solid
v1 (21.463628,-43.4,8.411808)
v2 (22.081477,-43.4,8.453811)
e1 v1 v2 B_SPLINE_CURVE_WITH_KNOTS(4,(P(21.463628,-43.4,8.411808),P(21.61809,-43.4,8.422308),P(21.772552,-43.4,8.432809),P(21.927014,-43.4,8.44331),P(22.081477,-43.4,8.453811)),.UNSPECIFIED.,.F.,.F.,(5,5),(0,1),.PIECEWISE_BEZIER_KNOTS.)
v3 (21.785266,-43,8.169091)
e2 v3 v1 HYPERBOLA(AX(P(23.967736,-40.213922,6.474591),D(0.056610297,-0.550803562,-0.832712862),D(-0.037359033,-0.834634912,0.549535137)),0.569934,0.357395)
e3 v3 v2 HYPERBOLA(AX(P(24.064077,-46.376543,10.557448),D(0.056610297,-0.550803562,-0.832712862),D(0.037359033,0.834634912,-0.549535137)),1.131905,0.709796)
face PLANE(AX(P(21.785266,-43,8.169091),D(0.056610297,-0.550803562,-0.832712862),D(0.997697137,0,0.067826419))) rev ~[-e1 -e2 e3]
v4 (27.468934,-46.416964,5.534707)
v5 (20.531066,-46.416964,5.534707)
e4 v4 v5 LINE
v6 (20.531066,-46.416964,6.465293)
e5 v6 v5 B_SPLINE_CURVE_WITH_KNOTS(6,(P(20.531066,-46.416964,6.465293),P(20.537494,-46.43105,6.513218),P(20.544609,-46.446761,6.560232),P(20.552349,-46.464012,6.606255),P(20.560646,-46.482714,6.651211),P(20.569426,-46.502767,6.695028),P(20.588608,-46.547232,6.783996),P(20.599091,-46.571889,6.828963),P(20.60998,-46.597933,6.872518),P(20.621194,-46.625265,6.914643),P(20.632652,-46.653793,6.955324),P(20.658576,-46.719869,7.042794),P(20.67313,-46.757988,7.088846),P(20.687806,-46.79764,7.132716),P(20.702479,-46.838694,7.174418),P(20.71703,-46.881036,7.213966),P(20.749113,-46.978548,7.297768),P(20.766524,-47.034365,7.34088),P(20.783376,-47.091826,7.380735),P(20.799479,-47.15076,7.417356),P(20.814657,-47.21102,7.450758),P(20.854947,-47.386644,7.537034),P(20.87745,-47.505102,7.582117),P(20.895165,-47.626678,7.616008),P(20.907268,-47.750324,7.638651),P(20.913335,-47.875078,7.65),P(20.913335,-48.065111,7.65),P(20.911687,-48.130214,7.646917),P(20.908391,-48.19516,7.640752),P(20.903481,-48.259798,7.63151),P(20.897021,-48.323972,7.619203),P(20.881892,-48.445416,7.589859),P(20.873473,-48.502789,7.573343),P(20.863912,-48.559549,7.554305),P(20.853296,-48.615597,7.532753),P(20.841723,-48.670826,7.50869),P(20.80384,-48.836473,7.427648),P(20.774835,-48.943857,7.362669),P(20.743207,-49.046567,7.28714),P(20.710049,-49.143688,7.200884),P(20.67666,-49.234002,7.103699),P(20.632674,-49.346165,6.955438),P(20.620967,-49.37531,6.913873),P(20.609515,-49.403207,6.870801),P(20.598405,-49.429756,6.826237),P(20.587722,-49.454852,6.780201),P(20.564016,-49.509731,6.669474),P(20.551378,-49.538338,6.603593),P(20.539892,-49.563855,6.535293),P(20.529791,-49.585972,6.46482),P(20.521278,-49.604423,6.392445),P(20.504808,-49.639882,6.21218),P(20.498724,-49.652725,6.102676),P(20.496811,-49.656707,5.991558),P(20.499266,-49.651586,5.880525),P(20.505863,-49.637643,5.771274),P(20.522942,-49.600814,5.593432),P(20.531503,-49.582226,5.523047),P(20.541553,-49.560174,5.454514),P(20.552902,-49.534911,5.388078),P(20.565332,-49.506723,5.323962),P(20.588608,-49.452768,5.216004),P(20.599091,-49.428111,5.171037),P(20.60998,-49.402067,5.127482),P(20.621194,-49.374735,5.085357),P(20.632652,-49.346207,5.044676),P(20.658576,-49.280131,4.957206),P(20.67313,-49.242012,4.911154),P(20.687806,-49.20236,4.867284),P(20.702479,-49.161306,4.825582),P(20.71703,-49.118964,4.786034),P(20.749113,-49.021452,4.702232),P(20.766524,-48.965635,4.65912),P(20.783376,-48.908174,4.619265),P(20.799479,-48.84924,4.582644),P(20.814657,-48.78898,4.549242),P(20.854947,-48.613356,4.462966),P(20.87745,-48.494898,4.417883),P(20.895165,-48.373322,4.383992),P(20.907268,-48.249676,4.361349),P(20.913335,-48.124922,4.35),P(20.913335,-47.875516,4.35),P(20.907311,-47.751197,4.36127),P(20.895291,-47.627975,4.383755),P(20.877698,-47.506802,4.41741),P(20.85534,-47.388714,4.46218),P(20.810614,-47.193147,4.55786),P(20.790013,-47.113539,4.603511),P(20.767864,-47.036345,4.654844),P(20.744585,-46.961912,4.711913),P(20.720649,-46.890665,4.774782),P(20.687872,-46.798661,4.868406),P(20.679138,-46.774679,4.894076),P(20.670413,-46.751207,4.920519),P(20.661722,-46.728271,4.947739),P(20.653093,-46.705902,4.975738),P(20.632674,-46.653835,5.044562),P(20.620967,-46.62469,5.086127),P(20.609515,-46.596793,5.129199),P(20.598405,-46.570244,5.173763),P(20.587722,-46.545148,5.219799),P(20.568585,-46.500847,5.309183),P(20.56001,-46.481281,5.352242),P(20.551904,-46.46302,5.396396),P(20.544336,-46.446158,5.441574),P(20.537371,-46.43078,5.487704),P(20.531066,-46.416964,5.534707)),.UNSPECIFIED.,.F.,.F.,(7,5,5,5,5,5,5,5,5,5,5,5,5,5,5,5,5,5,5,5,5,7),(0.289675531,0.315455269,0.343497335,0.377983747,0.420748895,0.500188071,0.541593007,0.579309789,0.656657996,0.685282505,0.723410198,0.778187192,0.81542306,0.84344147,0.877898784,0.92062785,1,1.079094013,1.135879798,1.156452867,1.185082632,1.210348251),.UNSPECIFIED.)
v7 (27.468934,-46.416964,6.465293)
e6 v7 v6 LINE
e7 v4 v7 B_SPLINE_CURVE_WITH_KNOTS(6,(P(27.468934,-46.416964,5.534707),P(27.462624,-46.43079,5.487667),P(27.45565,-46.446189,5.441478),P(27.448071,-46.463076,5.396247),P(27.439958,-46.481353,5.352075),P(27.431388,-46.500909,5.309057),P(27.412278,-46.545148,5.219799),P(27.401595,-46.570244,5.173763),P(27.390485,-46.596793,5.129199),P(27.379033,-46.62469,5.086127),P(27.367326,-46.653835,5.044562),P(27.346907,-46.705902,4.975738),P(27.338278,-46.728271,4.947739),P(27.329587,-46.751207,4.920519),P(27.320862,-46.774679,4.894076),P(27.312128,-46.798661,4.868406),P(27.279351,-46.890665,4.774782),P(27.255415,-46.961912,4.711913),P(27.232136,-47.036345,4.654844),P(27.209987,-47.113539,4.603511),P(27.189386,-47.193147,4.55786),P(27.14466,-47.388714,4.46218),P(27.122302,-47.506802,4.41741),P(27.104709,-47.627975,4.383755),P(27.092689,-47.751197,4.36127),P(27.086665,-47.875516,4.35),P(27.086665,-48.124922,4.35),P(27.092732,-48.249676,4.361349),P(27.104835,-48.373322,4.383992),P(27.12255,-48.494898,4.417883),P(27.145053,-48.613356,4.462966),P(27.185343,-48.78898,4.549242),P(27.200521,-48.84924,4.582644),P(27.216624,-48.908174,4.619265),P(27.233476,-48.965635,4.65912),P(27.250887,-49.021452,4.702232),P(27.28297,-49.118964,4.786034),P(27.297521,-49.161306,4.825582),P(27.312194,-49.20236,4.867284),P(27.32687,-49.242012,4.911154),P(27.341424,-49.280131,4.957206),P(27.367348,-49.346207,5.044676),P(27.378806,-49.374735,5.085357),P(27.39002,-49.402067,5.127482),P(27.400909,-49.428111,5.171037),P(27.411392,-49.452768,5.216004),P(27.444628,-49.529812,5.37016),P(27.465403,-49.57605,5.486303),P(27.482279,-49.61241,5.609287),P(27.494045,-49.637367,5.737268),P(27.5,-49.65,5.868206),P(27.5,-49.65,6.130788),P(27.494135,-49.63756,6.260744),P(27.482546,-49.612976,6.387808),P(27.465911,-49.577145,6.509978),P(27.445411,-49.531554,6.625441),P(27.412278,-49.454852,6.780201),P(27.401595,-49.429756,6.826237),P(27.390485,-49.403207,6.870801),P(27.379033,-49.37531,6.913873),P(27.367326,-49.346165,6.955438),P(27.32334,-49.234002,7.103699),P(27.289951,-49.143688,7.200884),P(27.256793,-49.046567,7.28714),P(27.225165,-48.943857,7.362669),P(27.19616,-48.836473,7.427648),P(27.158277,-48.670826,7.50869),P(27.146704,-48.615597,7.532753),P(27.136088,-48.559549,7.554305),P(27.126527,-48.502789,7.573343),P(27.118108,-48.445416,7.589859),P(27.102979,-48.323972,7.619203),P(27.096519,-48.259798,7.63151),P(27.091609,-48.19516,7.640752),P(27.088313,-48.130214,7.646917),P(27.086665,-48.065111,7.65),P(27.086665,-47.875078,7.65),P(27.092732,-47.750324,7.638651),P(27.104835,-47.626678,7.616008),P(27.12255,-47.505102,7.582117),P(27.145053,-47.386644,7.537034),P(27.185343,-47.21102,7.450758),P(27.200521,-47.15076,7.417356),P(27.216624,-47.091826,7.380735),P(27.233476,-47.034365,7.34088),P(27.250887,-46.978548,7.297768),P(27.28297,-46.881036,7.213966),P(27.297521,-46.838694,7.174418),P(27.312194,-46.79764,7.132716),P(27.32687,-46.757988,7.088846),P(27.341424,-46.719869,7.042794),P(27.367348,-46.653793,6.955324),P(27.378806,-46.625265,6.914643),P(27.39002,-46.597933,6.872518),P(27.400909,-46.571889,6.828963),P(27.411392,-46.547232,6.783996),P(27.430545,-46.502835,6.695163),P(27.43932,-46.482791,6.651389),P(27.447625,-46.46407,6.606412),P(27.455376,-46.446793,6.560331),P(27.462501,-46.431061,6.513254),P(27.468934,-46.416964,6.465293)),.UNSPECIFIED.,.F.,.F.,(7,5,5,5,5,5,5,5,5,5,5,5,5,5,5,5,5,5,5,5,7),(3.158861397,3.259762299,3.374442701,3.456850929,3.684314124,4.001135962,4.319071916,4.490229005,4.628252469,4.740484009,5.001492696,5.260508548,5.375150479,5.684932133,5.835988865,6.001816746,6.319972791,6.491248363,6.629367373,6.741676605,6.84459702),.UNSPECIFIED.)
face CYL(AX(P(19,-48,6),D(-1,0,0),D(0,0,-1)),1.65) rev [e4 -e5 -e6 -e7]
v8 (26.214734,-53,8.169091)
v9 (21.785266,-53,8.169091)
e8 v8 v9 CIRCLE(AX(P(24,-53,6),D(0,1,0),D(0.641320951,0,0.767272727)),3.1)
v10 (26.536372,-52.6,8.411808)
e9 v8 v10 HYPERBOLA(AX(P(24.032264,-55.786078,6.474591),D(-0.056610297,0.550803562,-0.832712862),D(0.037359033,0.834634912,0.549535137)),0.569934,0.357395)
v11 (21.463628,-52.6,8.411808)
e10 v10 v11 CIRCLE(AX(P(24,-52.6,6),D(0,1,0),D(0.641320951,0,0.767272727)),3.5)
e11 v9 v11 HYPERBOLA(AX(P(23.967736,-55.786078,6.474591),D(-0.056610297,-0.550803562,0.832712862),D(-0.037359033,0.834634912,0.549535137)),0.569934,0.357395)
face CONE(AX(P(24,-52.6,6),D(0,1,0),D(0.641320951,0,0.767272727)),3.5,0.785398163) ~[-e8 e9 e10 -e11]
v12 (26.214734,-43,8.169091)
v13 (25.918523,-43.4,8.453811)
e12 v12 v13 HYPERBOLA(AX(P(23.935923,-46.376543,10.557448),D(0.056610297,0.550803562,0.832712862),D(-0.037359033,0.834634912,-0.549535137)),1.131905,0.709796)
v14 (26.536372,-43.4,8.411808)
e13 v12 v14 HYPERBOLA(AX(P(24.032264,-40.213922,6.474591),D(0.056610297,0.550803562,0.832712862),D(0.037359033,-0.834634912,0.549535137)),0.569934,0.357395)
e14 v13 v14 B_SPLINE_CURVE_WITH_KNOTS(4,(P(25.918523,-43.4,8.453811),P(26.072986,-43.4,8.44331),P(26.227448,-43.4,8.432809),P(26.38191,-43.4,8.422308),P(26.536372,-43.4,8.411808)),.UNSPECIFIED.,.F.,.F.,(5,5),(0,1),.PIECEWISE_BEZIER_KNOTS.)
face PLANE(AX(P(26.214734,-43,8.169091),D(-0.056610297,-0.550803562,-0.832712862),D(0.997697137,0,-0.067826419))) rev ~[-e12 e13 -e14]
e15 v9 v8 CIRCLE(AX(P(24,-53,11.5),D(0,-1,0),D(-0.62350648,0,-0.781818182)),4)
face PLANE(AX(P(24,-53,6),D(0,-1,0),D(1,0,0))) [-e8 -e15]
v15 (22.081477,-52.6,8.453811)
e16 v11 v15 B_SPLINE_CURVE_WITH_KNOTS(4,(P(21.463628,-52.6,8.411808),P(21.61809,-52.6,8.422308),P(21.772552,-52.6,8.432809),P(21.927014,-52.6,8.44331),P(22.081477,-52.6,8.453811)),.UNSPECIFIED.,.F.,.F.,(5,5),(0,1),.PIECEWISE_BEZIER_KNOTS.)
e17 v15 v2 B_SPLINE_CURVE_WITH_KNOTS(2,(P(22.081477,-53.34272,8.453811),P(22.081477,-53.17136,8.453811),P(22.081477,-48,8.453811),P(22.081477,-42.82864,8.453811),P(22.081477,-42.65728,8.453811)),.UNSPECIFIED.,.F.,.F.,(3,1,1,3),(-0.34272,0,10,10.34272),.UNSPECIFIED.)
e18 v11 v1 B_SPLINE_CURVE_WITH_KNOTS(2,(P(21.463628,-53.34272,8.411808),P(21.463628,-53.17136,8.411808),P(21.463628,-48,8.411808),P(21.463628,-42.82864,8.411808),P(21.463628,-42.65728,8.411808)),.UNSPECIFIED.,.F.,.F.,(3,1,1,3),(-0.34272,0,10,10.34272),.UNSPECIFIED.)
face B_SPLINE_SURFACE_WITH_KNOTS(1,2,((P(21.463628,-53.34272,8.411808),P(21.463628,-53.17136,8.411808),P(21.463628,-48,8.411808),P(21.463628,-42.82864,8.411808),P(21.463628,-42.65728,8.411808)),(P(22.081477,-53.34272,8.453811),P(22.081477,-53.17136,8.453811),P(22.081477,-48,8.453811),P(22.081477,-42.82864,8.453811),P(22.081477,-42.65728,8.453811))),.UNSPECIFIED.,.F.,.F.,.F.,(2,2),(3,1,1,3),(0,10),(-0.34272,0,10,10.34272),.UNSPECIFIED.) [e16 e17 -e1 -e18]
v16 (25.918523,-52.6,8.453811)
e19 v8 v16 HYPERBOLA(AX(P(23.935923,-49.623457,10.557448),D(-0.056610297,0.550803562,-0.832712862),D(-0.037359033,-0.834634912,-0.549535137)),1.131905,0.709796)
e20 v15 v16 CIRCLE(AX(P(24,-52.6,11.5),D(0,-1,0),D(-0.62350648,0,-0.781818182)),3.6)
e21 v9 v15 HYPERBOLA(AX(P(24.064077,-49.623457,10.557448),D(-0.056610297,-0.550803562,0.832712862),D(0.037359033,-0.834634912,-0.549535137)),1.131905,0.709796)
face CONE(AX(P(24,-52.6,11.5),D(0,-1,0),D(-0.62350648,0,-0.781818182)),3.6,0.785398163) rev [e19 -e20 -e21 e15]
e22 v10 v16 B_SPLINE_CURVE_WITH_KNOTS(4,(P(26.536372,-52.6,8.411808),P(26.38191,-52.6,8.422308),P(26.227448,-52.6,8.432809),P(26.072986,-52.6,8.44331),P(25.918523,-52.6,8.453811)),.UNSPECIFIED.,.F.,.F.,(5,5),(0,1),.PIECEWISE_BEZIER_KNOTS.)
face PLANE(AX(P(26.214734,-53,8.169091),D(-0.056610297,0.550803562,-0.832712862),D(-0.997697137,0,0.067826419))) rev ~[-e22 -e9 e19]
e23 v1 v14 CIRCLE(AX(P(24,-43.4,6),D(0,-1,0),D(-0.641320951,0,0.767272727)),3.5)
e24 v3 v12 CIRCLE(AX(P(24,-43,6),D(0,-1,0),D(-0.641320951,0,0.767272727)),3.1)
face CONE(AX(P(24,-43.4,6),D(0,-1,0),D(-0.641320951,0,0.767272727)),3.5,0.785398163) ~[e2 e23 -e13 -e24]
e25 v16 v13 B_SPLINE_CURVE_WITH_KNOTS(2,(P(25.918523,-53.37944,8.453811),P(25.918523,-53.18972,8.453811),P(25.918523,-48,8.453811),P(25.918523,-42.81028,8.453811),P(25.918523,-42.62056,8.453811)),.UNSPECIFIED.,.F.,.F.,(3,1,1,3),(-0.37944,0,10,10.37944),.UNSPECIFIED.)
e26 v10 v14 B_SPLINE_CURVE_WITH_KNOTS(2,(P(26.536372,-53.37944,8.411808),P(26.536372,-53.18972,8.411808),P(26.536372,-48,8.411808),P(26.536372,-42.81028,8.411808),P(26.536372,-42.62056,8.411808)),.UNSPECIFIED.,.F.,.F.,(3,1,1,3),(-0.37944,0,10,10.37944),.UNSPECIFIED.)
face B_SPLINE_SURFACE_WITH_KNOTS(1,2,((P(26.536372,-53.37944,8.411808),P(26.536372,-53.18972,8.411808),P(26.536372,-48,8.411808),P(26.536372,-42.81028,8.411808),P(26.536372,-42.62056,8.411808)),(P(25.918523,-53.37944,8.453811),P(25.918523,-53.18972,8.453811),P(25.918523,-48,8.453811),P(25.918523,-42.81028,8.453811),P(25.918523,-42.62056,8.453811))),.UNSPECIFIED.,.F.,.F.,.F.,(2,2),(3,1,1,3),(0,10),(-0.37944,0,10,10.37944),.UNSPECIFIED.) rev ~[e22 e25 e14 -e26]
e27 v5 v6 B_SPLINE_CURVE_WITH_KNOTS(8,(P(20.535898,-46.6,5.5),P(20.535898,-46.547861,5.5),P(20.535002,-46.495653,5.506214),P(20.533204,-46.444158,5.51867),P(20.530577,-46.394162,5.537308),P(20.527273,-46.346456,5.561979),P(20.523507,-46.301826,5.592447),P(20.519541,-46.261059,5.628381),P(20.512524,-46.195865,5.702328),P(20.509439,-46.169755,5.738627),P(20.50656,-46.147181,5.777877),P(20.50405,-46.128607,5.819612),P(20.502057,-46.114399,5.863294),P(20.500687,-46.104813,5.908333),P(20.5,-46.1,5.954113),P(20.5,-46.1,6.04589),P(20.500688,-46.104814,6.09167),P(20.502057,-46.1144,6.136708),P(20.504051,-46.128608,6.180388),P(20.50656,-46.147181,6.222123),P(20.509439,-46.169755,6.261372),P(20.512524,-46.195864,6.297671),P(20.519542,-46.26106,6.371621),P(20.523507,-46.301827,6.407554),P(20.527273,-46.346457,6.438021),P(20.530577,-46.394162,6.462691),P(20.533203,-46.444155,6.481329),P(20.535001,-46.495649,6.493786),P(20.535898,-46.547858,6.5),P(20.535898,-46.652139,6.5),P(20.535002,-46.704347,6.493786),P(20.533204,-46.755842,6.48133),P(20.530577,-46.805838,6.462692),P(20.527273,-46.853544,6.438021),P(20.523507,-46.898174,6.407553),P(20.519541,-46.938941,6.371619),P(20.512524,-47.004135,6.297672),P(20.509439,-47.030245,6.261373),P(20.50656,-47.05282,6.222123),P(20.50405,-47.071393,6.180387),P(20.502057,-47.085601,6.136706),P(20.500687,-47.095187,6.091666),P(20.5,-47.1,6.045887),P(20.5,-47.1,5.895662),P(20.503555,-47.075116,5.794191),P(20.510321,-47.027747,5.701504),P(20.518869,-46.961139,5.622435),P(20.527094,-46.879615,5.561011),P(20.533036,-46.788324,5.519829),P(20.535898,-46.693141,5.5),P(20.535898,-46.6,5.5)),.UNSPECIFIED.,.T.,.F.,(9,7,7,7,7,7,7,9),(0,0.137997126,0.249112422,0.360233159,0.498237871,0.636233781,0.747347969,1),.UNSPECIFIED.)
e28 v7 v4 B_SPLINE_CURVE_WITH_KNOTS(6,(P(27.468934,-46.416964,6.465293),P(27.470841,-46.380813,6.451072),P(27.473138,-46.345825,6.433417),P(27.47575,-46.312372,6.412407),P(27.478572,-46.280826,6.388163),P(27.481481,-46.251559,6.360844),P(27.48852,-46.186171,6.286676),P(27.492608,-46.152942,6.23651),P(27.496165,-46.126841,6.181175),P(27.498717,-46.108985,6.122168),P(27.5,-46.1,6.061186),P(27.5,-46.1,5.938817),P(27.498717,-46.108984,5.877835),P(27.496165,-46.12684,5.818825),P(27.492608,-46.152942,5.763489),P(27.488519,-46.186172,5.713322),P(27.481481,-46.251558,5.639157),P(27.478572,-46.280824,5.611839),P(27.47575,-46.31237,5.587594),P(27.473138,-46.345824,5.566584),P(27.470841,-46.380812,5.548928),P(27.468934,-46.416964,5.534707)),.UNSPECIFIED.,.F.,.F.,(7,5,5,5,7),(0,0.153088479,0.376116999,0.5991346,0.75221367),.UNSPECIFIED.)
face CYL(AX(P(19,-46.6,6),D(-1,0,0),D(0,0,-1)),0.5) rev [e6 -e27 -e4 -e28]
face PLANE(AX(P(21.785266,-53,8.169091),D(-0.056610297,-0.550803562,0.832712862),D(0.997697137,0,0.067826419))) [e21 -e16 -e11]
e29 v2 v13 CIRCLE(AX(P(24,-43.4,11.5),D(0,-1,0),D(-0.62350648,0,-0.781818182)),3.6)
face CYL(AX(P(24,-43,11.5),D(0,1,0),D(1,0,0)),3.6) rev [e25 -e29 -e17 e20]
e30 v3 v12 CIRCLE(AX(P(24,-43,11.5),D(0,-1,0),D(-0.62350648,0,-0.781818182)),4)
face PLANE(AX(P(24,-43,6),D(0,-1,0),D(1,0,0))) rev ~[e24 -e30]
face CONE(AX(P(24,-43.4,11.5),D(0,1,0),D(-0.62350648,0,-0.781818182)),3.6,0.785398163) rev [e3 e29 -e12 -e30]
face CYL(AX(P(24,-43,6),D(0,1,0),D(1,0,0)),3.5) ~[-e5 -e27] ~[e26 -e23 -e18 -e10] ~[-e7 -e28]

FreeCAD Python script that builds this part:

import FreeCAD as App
import Part
import Sketcher


def edges_at(feature, points):
    """Names of the edges that pass closest to the given points."""
    edges = feature.Shape.Edges
    near = lambda p: min(range(len(edges)), key=lambda i: edges[i].distToShape(Part.Vertex(*p))[0])
    return sorted({f"Edge{near(p) + 1}" for p in points})

doc = App.newDocument("Part")
body = doc.addObject("PartDesign::Body", "Body")

# Sketch on YZ plane
sketch1 = body.newObject("Sketcher::SketchObject", "Sketch")
sketch1.AttachmentSupport = (doc.getObject("YZ_Plane"), [""])
sketch1.MapMode = "FlatFace"
sketch1.AttachmentOffset = App.Placement(App.Vector(0, 0, 19), App.Rotation())
sketch1.addGeometry(Part.Circle(App.Vector(-46.6, 6, 0), App.Vector(0, 0, 1), 0.5), False)
sketch1.addConstraint(Sketcher.Constraint("Diameter", 0, 1.0))
sketch1.addConstraint(Sketcher.Constraint("DistanceY", -1, 1, 0, 3, 6.0))
sketch1.addConstraint(Sketcher.Constraint("DistanceX", 0, 3, -1, 1, 46.6))
pad1 = body.newObject("PartDesign::Pad", "Pad")
pad1.Profile = sketch1
pad1.Length = 10
body2 = doc.addObject("PartDesign::Body", "Body001")

# Sketch on YZ plane
sketch2 = body2.newObject("Sketcher::SketchObject", "Sketch001")
sketch2.AttachmentSupport = (doc.getObject("YZ_Plane001"), [""])
sketch2.MapMode = "FlatFace"
sketch2.AttachmentOffset = App.Placement(App.Vector(0, 0, 19), App.Rotation())
sketch2.addGeometry(Part.Circle(App.Vector(-48, 6, 0), App.Vector(0, 0, 1), 1.6), False)
sketch2.addConstraint(Sketcher.Constraint("Diameter", 0, 3.3))
sketch2.addConstraint(Sketcher.Constraint("DistanceX", 0, 3, -1, 1, 48.0))
sketch2.addConstraint(Sketcher.Constraint("DistanceY", -1, 1, 0, 3, 6.0))
pad2 = body2.newObject("PartDesign::Pad", "Pad001")
pad2.Profile = sketch2
pad2.Length = 10
body3 = doc.addObject("PartDesign::Body", "Body002")

# Sketch on XZ plane
sketch3 = body3.newObject("Sketcher::SketchObject", "Sketch002")
sketch3.AttachmentSupport = (doc.getObject("XZ_Plane002"), [""])
sketch3.MapMode = "FlatFace"
sketch3.AttachmentOffset = App.Placement(App.Vector(0, 0, 43), App.Rotation())
sketch3.addGeometry(Part.Circle(App.Vector(24, 11.5, 0), App.Vector(0, 0, 1), 3.6), False)
sketch3.addConstraint(Sketcher.Constraint("Diameter", 0, 7.2))
sketch3.addConstraint(Sketcher.Constraint("DistanceX", -1, 1, 0, 3, 24.0))
sketch3.addConstraint(Sketcher.Constraint("DistanceY", -1, 1, 0, 3, 11.5))
pad3 = body3.newObject("PartDesign::Pad", "Pad002")
pad3.Profile = sketch3
pad3.Length = 10
body4 = doc.addObject("PartDesign::Body", "Body003")

# Sketch on XZ plane
sketch4 = body4.newObject("Sketcher::SketchObject", "Sketch003")
sketch4.AttachmentSupport = (doc.getObject("XZ_Plane003"), [""])
sketch4.MapMode = "FlatFace"
sketch4.AttachmentOffset = App.Placement(App.Vector(0, 0, 43), App.Rotation())
sketch4.addGeometry(Part.Circle(App.Vector(24, 6, 0), App.Vector(0, 0, 1), 3.5), False)
sketch4.addConstraint(Sketcher.Constraint("Diameter", 0, 7.0))
sketch4.addConstraint(Sketcher.Constraint("DistanceX", -1, 1, 0, 3, 24.0))
sketch4.addConstraint(Sketcher.Constraint("DistanceY", -1, 1, 0, 3, 6.0))
pad4 = body4.newObject("PartDesign::Pad", "Pad003")
pad4.Profile = sketch4
pad4.Length = 10
doc.recompute()

boolean = body4.newObject("PartDesign::Boolean", "Boolean")
boolean.Type = "Cut"
boolean.addObjects([body3])
doc.recompute()

boolean2 = body4.newObject("PartDesign::Boolean", "Boolean001")
boolean2.Type = "Cut"
boolean2.addObjects([body2])
doc.recompute()

boolean3 = body4.newObject("PartDesign::Boolean", "Boolean002")
boolean3.Type = "Cut"
boolean3.addObjects([body])
doc.recompute()

chamfer = body4.newObject("PartDesign::Chamfer", "Chamfer")
chamfer.Base = (boolean3, edges_at(boolean3, [
    (21.755, -48, 8.685),
    (24, -53, 2.5),
    (24, -43, 2.5),
    (24, -53, 7.9),
    (26.245, -48, 8.685),
    (24, -43, 7.9),
    (24, -53, 2.5),
    (24, -43, 2.5),
]))
chamfer.Size = 0.4

doc.recompute()
